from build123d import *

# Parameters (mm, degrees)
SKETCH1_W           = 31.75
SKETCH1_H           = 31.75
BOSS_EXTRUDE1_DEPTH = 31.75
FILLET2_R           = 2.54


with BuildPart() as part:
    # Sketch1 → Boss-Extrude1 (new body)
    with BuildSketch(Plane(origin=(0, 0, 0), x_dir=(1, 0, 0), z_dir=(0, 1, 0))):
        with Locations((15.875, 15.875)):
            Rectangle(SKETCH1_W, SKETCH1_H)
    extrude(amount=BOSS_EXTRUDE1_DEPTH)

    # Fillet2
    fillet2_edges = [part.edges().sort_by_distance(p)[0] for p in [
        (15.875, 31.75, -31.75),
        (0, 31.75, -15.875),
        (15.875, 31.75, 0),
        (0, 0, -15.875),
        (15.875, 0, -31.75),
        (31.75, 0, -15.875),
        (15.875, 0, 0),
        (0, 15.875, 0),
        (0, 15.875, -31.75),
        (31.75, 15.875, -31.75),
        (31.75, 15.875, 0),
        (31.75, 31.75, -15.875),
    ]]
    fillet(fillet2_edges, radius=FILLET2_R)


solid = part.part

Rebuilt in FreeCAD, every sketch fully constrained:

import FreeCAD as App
import Part
import Sketcher

V = App.Vector
Q = App.Units.Quantity


def add_polygon(sketch, points):
    """Adds a closed chain of lines whose ends are joined by coincident constraints."""
    first, n = sketch.GeometryCount, len(points)
    for a, b in zip(points, points[1:] + points[:1]):
        sketch.addGeometry(Part.LineSegment(App.Vector(*a, 0), App.Vector(*b, 0)), False)
    for i in range(n):
        sketch.addConstraint(Sketcher.Constraint("Coincident", first + i, 2, first + (i + 1) % n, 1))

doc = App.newDocument("Part")
body = doc.addObject("PartDesign::Body", "Body")

# Sketch on XZ plane
sketch1 = doc.addObject("Sketcher::SketchObject", "Sketch")
body.addObject(sketch1)
sketch1.AttachmentSupport = (doc.XZ_Plane, [""])
sketch1.MapMode = "FlatFace"
add_polygon(sketch1, [(0, -32), (0, 0), (32, 0), (32, -32)])  # lines 0-3
sketch1.addConstraint(Sketcher.Constraint("Vertical", 0))
sketch1.addConstraint(Sketcher.Constraint("Horizontal", 1))
sketch1.addConstraint(Sketcher.Constraint("Vertical", 2))
sketch1.addConstraint(Sketcher.Constraint("Horizontal", 3))
sketch1.addConstraint(Sketcher.Constraint("Coincident", 0, 2, -1, 1))
sketch1.addConstraint(Sketcher.Constraint("Equal", 3, 0))
sketch1.addConstraint(Sketcher.Constraint("DistanceX", 1, 1, 1, 2, Q("1.25 in")))
pad1 = doc.addObject("PartDesign::Pad", "Pad")
body.addObject(pad1)
pad1.Profile = sketch1
pad1.Length = Q("1.25 in")
pad1.Reversed = True
doc.recompute()

fillet = doc.addObject("PartDesign::Fillet", "Fillet")
body.addObject(fillet)
fillet.Base = (pad1, ["Edge1"])
fillet.UseAllEdges = True
fillet.Radius = Q("0.1 in")

doc.recompute()
